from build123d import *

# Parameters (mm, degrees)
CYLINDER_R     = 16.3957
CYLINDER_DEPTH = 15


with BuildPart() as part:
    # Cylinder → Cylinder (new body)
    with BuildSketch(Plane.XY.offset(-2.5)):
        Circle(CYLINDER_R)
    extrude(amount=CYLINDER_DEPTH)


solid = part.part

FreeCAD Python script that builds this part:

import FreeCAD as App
import Part
import Sketcher

V = App.Vector

doc = App.newDocument("Part")
params = doc.addObject("Spreadsheet::Sheet", "Params")
for row, (alias, value) in enumerate([
    ("pad1_length", "15 mm"),
], start=1):
    params.set(f"A{row}", alias)
    params.set(f"B{row}", "=" + value)
    params.setAlias(f"B{row}", alias)

body = doc.addObject("PartDesign::Body", "Body")

# Sketch on XY plane
sketch1 = doc.addObject("Sketcher::SketchObject", "Sketch")
body.addObject(sketch1)
sketch1.AttachmentSupport = (doc.XY_Plane, [""])
sketch1.MapMode = "FlatFace"
sketch1.AttachmentOffset = App.Placement(V(0, 0, -2.5), App.Rotation())
sketch1.addGeometry(Part.Circle(V(0, 0, 0), V(0, 0, 1), 16), False)
sketch1.addConstraint([
    Sketcher.Constraint("Coincident", 0, 3, -1, 1),
    Sketcher.Constraint("Diameter", 0, 32.7914),
])
pad1 = doc.addObject("PartDesign::Pad", "Pad")
body.addObject(pad1)
pad1.Profile = sketch1
pad1.setExpression("Length", "Params.pad1_length")

doc.recompute()
